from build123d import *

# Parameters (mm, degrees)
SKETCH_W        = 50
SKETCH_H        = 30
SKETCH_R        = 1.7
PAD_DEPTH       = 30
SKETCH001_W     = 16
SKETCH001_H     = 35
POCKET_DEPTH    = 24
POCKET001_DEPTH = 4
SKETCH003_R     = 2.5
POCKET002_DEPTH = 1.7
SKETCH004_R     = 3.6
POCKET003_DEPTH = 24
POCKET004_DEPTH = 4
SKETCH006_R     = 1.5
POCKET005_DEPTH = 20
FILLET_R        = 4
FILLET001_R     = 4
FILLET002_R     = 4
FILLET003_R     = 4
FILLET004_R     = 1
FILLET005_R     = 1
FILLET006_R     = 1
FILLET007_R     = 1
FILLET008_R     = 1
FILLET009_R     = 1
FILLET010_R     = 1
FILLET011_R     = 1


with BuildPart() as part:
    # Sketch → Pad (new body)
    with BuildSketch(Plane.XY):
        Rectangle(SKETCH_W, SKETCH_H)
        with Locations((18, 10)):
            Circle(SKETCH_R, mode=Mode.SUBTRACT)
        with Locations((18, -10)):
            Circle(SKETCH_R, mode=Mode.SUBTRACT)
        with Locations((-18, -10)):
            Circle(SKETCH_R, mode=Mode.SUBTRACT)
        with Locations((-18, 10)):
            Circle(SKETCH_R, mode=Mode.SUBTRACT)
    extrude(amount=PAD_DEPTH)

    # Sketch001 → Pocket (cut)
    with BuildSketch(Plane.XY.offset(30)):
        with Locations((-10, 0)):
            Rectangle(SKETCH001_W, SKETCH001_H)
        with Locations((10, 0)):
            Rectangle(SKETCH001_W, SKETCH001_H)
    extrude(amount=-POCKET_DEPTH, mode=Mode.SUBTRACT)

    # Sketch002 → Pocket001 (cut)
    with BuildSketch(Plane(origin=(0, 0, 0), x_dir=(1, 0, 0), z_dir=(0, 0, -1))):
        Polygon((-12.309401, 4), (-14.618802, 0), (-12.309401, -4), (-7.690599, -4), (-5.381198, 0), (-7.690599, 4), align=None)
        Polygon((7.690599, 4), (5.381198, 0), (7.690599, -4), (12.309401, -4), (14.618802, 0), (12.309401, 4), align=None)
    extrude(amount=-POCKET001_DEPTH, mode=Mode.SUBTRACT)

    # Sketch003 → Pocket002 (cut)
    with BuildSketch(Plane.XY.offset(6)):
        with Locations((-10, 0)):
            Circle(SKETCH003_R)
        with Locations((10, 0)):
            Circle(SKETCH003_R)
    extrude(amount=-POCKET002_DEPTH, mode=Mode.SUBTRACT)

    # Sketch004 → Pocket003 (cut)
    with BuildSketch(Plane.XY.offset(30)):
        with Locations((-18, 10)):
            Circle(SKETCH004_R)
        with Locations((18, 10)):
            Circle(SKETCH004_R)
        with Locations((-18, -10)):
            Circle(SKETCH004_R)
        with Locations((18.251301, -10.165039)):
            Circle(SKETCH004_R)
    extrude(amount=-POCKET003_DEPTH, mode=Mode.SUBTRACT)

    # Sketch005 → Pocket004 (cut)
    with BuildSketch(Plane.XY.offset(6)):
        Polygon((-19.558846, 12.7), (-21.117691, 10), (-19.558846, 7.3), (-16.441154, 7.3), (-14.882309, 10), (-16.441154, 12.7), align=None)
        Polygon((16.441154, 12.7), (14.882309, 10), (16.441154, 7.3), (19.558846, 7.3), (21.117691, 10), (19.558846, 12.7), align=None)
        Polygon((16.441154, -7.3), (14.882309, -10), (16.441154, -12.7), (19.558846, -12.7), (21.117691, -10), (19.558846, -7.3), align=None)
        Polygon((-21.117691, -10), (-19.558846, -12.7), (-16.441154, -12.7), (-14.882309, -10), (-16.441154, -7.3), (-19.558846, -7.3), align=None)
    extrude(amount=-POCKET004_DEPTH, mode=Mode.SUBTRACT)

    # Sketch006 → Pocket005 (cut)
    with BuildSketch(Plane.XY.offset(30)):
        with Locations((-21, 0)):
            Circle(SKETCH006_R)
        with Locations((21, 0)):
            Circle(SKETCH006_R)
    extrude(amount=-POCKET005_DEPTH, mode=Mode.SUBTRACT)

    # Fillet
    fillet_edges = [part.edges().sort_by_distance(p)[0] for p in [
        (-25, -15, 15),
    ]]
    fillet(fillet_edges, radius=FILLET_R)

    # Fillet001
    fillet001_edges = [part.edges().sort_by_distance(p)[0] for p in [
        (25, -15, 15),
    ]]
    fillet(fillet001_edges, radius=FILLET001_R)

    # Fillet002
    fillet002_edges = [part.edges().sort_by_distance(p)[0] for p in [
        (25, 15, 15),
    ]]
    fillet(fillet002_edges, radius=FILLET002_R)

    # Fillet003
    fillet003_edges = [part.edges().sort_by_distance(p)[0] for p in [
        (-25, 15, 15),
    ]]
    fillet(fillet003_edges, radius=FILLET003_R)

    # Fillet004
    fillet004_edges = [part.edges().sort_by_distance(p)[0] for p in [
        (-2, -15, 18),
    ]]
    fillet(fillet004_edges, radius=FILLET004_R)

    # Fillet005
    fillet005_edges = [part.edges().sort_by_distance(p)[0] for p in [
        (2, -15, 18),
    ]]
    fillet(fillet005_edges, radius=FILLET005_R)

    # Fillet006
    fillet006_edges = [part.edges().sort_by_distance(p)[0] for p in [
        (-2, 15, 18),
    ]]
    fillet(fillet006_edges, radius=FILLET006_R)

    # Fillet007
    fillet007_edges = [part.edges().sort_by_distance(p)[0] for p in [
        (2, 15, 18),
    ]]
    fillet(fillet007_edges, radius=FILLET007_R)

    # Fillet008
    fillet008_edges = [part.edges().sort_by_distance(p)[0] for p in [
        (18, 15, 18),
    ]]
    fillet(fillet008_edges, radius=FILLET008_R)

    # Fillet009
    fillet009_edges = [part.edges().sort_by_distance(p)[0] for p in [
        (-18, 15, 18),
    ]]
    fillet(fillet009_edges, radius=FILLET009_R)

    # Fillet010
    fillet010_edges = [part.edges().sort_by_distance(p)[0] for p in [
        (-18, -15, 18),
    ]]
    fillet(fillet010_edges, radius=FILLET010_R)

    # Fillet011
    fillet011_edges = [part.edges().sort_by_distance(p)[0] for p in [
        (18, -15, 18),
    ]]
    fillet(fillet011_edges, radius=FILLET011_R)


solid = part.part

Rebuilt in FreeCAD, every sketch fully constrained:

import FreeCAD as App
import Part
import Sketcher

V = App.Vector
Q = App.Units.Quantity


def edges_at(feature, points):
    """Names of the edges that pass closest to the given points."""
    edges = feature.Shape.Edges
    near = lambda p: min(range(len(edges)), key=lambda i: edges[i].distToShape(Part.Vertex(*p))[0])
    return sorted({f"Edge{near(p) + 1}" for p in points})


def add_polygon(sketch, points):
    """Adds a closed chain of lines whose ends are joined by coincident constraints."""
    first, n = sketch.GeometryCount, len(points)
    for a, b in zip(points, points[1:] + points[:1]):
        sketch.addGeometry(Part.LineSegment(App.Vector(*a, 0), App.Vector(*b, 0)), False)
    for i in range(n):
        sketch.addConstraint(Sketcher.Constraint("Coincident", first + i, 2, first + (i + 1) % n, 1))

doc = App.newDocument("Part")
body = doc.addObject("PartDesign::Body", "Body")

# Sketch on XY plane
sketch1 = body.newObject("Sketcher::SketchObject", "Sketch")
sketch1.AttachmentSupport = (doc.getObject("XY_Plane"), [""])
sketch1.MapMode = "FlatFace"
add_polygon(sketch1, [(-25, 15), (-25, -15), (25, -15), (25, 15)])  # lines 0-3
sketch1.addGeometry(Part.Circle(V(-18, -10, 0), V(0, 0, 1), 1.7), False)  # 4
sketch1.addGeometry(Part.Circle(V(18, -10, 0), V(0, 0, 1), 1.7), False)  # 5
sketch1.addGeometry(Part.Circle(V(-18, 10, 0), V(0, 0, 1), 1.7), False)  # 6
sketch1.addGeometry(Part.Circle(V(18, 10, 0), V(0, 0, 1), 1.7), False)  # 7
sketch1.addConstraint([
    Sketcher.Constraint("Vertical", 0),
    Sketcher.Constraint("Horizontal", 1),
    Sketcher.Constraint("Vertical", 2),
    Sketcher.Constraint("Horizontal", 3),
    Sketcher.Constraint("Equal", 4, 5),
    Sketcher.Constraint("Equal", 5, 6),
    Sketcher.Constraint("Equal", 6, 7),
    Sketcher.Constraint("Symmetric", 5, 3, 6, 3, -1, 1),
    Sketcher.Constraint("Symmetric", 4, 3, 7, 3, -1, 1),
    Sketcher.Constraint("Symmetric", 0, 2, 2, 2, -1, 1),
    Sketcher.Constraint("Symmetric", 4, 3, 5, 3, -2),
    Sketcher.Constraint("Diameter", 4, 3.4),
    Sketcher.Constraint("DistanceX", 1, 1, 1, 2, 50.0),
    Sketcher.Constraint("DistanceY", 0, 2, 0, 1, 30.0),
    Sketcher.Constraint("DistanceX", 4, 3, -1, 1, 18.0),
    Sketcher.Constraint("DistanceY", 4, 3, -1, 1, 10.0),
])
pad1 = body.newObject("PartDesign::Pad", "Pad")
pad1.Profile = sketch1
pad1.Length = 30

# Sketch on XY plane
sketch2 = body.newObject("Sketcher::SketchObject", "Sketch001")
sketch2.AttachmentSupport = (doc.getObject("XY_Plane"), [""])
sketch2.MapMode = "FlatFace"
sketch2.AttachmentOffset = App.Placement(V(0, 0, 30), App.Rotation())
add_polygon(sketch2, [(-18, 17.5), (-18, -17.5), (-2, -17.5), (-2, 17.5)])  # lines 0-3
add_polygon(sketch2, [(2, 17.5), (2, -17.5), (18, -17.5), (18, 17.5)])  # lines 4-7
sketch2.addConstraint([
    Sketcher.Constraint("Vertical", 0),
    Sketcher.Constraint("Horizontal", 1),
    Sketcher.Constraint("Vertical", 2),
    Sketcher.Constraint("Horizontal", 3),
    Sketcher.Constraint("Vertical", 4),
    Sketcher.Constraint("Horizontal", 5),
    Sketcher.Constraint("Vertical", 6),
    Sketcher.Constraint("Horizontal", 7),
    Sketcher.Constraint("Symmetric", 2, 2, 4, 2, -1, 1),
    Sketcher.Constraint("Symmetric", 0, 2, 6, 2, -1, 1),
    Sketcher.Constraint("Horizontal", 1, 2, 4, 2),
    Sketcher.Constraint("DistanceX", 1, 1, 1, 2, 16.0),
    Sketcher.Constraint("DistanceY", 0, 2, 0, 1, 35.0),
    Sketcher.Constraint("DistanceX", 0, 2, -1, 1, 18.0),
])
pocket1 = body.newObject("PartDesign::Pocket", "Pocket")
pocket1.Profile = sketch2
pocket1.Length = 24

# Sketch on XY plane
sketch3 = body.newObject("Sketcher::SketchObject", "Sketch002")
sketch3.AttachmentSupport = (doc.getObject("XY_Plane"), [""])
sketch3.MapMode = "FlatFace"
add_polygon(sketch3, [(-12.309401, -4), (-14.618802, 0), (-12.309401, 4), (-7.690599, 4), (-5.381198, 0), (-7.690599, -4)])  # lines 0-5
add_polygon(sketch3, [(7.690599, -4), (5.381198, 0), (7.690599, 4), (12.309401, 4), (14.618802, 0), (12.309401, -4)])  # lines 6-11
sketch3.addConstraint([
    Sketcher.Constraint("Horizontal", 2),
    Sketcher.Constraint("Horizontal", 5),
    Sketcher.Constraint("Horizontal", 8),
    Sketcher.Constraint("Horizontal", 11),
    Sketcher.Constraint("Symmetric", 3, 2, 6, 2, -1, 1),
    Sketcher.Constraint("Symmetric", 4, 2, 7, 2, -1, 1),
    Sketcher.Constraint("Symmetric", 0, 2, 9, 2, -1, 1),
    Sketcher.Constraint("Symmetric", 1, 2, 10, 2, -1, 1),
    Sketcher.Constraint("Symmetric", 2, 2, 7, 2, -2),
    Sketcher.Constraint("PointOnObject", 0, 2, -1),
    Sketcher.Constraint("PointOnObject", 3, 2, -1),
    Sketcher.Constraint("Parallel", 0, 3),
    Sketcher.Constraint("Parallel", 1, 4),
    Sketcher.Constraint("Parallel", 3, 6),
    Sketcher.Constraint("Parallel", 6, 9),
    Sketcher.Constraint("Angle", 0, Q("119.999999 deg")),
    Sketcher.Constraint("DistanceY", -1, 1, 1, 2, 4.0),
    Sketcher.Constraint("DistanceX", 1, 2, 7, 2, 20.0),
    Sketcher.Constraint("DistanceX", 2, 1, 2, 2, 4.618802),
])
pocket2 = body.newObject("PartDesign::Pocket", "Pocket001")
pocket2.Profile = sketch3
pocket2.Length = 4
pocket2.Reversed = True

# Sketch on XY plane
sketch4 = body.newObject("Sketcher::SketchObject", "Sketch003")
sketch4.AttachmentSupport = (doc.getObject("XY_Plane"), [""])
sketch4.MapMode = "FlatFace"
sketch4.AttachmentOffset = App.Placement(V(0, 0, 6), App.Rotation())
sketch4.addGeometry([
    Part.Circle(V(-10, 0, 0), V(0, 0, 1), 2.5),
    Part.Circle(V(10, 0, 0), V(0, 0, 1), 2.5),
], False)
sketch4.addConstraint([
    Sketcher.Constraint("Equal", 0, 1),
    Sketcher.Constraint("Symmetric", 0, 3, 1, 3, -1, 1),
    Sketcher.Constraint("PointOnObject", 0, 3, -1),
    Sketcher.Constraint("Diameter", 0, 5.0),
    Sketcher.Constraint("DistanceX", 0, 3, -1, 1, 10.0),
])
pocket3 = body.newObject("PartDesign::Pocket", "Pocket002")
pocket3.Profile = sketch4
pocket3.Length = 1.7

# Sketch on XY plane
sketch5 = body.newObject("Sketcher::SketchObject", "Sketch004")
sketch5.AttachmentSupport = (doc.getObject("XY_Plane"), [""])
sketch5.MapMode = "FlatFace"
sketch5.AttachmentOffset = App.Placement(V(0, 0, 30), App.Rotation())
sketch5.addGeometry([
    Part.Circle(V(-18, 10, 0), V(0, 0, 1), 3.6),
    Part.Circle(V(18, 10, 0), V(0, 0, 1), 3.6),
    Part.Circle(V(-18, -10, 0), V(0, 0, 1), 3.6),
    Part.Circle(V(18.251301, -10.165039, 0), V(0, 0, 1), 3.6),
], False)
sketch5.addConstraint([
    Sketcher.Constraint("Equal", 0, 1),
    Sketcher.Constraint("Equal", 1, 2),
    Sketcher.Constraint("Equal", 2, 3),
    Sketcher.Constraint("Symmetric", 1, 3, 2, 3, -1, 1),
    Sketcher.Constraint("Symmetric", 0, 3, 1, 3, -2),
    Sketcher.Constraint("Diameter", 0, 7.2),
    Sketcher.Constraint("DistanceX", 0, 3, -1, 1, 18.0),
    Sketcher.Constraint("DistanceY", -1, 1, 0, 3, 10.0),
    Sketcher.Constraint("DistanceX", -1, 1, 3, 3, 18.251301),
    Sketcher.Constraint("DistanceY", 3, 3, -1, 1, 10.165039),
])
pocket4 = body.newObject("PartDesign::Pocket", "Pocket003")
pocket4.Profile = sketch5
pocket4.Length = 24

# Sketch on XY plane
sketch6 = body.newObject("Sketcher::SketchObject", "Sketch005")
sketch6.AttachmentSupport = (doc.getObject("XY_Plane"), [""])
sketch6.MapMode = "FlatFace"
sketch6.AttachmentOffset = App.Placement(V(0, 0, 6), App.Rotation())
add_polygon(sketch6, [(-19.558846, 12.7), (-21.117691, 10), (-19.558846, 7.3), (-16.441154, 7.3), (-14.882309, 10), (-16.441154, 12.7)])  # lines 0-5
add_polygon(sketch6, [(16.441154, 12.7), (14.882309, 10), (16.441154, 7.3), (19.558846, 7.3), (21.117691, 10), (19.558846, 12.7)])  # lines 6-11
add_polygon(sketch6, [(16.441154, -7.3), (14.882309, -10), (16.441154, -12.7), (19.558846, -12.7), (21.117691, -10), (19.558846, -7.3)])  # lines 12-17
add_polygon(sketch6, [(-21.117691, -10), (-19.558846, -12.7), (-16.441154, -12.7), (-14.882309, -10), (-16.441154, -7.3), (-19.558846, -7.3)])  # lines 18-23
sketch6.addConstraint([
    Sketcher.Constraint("Horizontal", 2),
    Sketcher.Constraint("Horizontal", 5),
    Sketcher.Constraint("Horizontal", 8),
    Sketcher.Constraint("Horizontal", 11),
    Sketcher.Constraint("Horizontal", 14),
    Sketcher.Constraint("Horizontal", 17),
    Sketcher.Constraint("Horizontal", 19),
    Sketcher.Constraint("Horizontal", 22),
    Sketcher.Constraint("Symmetric", 3, 2, 12, 2, -1, 1),
    Sketcher.Constraint("Symmetric", 4, 2, 13, 2, -1, 1),
    Sketcher.Constraint("Symmetric", 0, 2, 15, 2, -1, 1),
    Sketcher.Constraint("Symmetric", 1, 2, 16, 2, -1, 1),
    Sketcher.Constraint("Symmetric", 10, 2, 18, 2, -1, 1),
    Sketcher.Constraint("Symmetric", 6, 2, 20, 2, -1, 1),
    Sketcher.Constraint("Symmetric", 7, 2, 21, 2, -1, 1),
    Sketcher.Constraint("Symmetric", 9, 2, 23, 2, -1, 1),
    Sketcher.Constraint("Symmetric", 3, 2, 6, 2, -2),
    Sketcher.Constraint("Symmetric", 2, 2, 7, 2, -2),
    Sketcher.Constraint("Symmetric", 0, 2, 9, 2, -2),
    Sketcher.Constraint("Symmetric", 5, 2, 10, 2, -2),
    Sketcher.Constraint("Parallel", 0, 3),
    Sketcher.Constraint("Parallel", 1, 4),
    Sketcher.Constraint("Parallel", 3, 6),
    Sketcher.Constraint("Parallel", 4, 7),
    Sketcher.Constraint("Parallel", 6, 9),
    Sketcher.Constraint("Parallel", 9, 12),
    Sketcher.Constraint("Parallel", 12, 15),
    Sketcher.Constraint("Parallel", 15, 20),
    Sketcher.Constraint("Parallel", 20, 23),
    Sketcher.Constraint("Horizontal", 0, 2, 3, 2),
    Sketcher.Constraint("Vertical", 2, 2, 4, 2),
    Sketcher.Constraint("Angle", 0, Q("-119.999988 deg")),
    Sketcher.Constraint("DistanceY", -1, 1, 0, 2, 10.0),
    Sketcher.Constraint("DistanceX", 1, 2, 7, 2, 36.0),
    Sketcher.Constraint("DistanceY", -1, 1, 1, 2, 7.3),
    Sketcher.Constraint("DistanceX", 2, 1, 2, 2, 3.117692),
])
pocket5 = body.newObject("PartDesign::Pocket", "Pocket004")
pocket5.Profile = sketch6
pocket5.Length = 4

# Sketch on XY plane
sketch7 = body.newObject("Sketcher::SketchObject", "Sketch006")
sketch7.AttachmentSupport = (doc.getObject("XY_Plane"), [""])
sketch7.MapMode = "FlatFace"
sketch7.AttachmentOffset = App.Placement(V(0, 0, 30), App.Rotation())
sketch7.addGeometry([
    Part.Circle(V(-21, 0, 0), V(0, 0, 1), 1.5),
    Part.Circle(V(21, 0, 0), V(0, 0, 1), 1.5),
], False)
sketch7.addConstraint([
    Sketcher.Constraint("Equal", 0, 1),
    Sketcher.Constraint("Symmetric", 0, 3, 1, 3, -1, 1),
    Sketcher.Constraint("PointOnObject", 0, 3, -1),
    Sketcher.Constraint("Diameter", 0, 3.0),
    Sketcher.Constraint("DistanceX", 0, 3, -1, 1, 21.0),
])
pocket6 = body.newObject("PartDesign::Pocket", "Pocket005")
pocket6.Profile = sketch7
pocket6.Length = 20
doc.recompute()

fillet = body.newObject("PartDesign::Fillet", "Fillet")
fillet.Base = (pocket6, edges_at(pocket6, [(-25, -15, 15)]))
fillet.Radius = 4
doc.recompute()

fillet2 = body.newObject("PartDesign::Fillet", "Fillet001")
fillet2.Base = (fillet, edges_at(fillet, [(25, -15, 15)]))
fillet2.Radius = 4
doc.recompute()

fillet3 = body.newObject("PartDesign::Fillet", "Fillet002")
fillet3.Base = (fillet2, edges_at(fillet2, [(25, 15, 15)]))
fillet3.Radius = 4
doc.recompute()

fillet4 = body.newObject("PartDesign::Fillet", "Fillet003")
fillet4.Base = (fillet3, edges_at(fillet3, [(-25, 15, 15)]))
fillet4.Radius = 4
doc.recompute()

fillet5 = body.newObject("PartDesign::Fillet", "Fillet004")
fillet5.Base = (fillet4, edges_at(fillet4, [(-2, -15, 18)]))
fillet5.Radius = 1
doc.recompute()

fillet6 = body.newObject("PartDesign::Fillet", "Fillet005")
fillet6.Base = (fillet5, edges_at(fillet5, [(2, -15, 18)]))
fillet6.Radius = 1
doc.recompute()

fillet7 = body.newObject("PartDesign::Fillet", "Fillet006")
fillet7.Base = (fillet6, edges_at(fillet6, [(-2, 15, 18)]))
fillet7.Radius = 1
doc.recompute()

fillet8 = body.newObject("PartDesign::Fillet", "Fillet007")
fillet8.Base = (fillet7, edges_at(fillet7, [(2, 15, 18)]))
fillet8.Radius = 1
doc.recompute()

fillet9 = body.newObject("PartDesign::Fillet", "Fillet008")
fillet9.Base = (fillet8, edges_at(fillet8, [(18, 15, 18)]))
fillet9.Radius = 1
doc.recompute()

fillet10 = body.newObject("PartDesign::Fillet", "Fillet009")
fillet10.Base = (fillet9, edges_at(fillet9, [(-18, 15, 18)]))
fillet10.Radius = 1
doc.recompute()

fillet11 = body.newObject("PartDesign::Fillet", "Fillet010")
fillet11.Base = (fillet10, edges_at(fillet10, [(-18, -15, 18)]))
fillet11.Radius = 1
doc.recompute()

fillet12 = body.newObject("PartDesign::Fillet", "Fillet011")
fillet12.Base = (fillet11, edges_at(fillet11, [(18, -15, 18)]))
fillet12.Radius = 1

doc.recompute()
